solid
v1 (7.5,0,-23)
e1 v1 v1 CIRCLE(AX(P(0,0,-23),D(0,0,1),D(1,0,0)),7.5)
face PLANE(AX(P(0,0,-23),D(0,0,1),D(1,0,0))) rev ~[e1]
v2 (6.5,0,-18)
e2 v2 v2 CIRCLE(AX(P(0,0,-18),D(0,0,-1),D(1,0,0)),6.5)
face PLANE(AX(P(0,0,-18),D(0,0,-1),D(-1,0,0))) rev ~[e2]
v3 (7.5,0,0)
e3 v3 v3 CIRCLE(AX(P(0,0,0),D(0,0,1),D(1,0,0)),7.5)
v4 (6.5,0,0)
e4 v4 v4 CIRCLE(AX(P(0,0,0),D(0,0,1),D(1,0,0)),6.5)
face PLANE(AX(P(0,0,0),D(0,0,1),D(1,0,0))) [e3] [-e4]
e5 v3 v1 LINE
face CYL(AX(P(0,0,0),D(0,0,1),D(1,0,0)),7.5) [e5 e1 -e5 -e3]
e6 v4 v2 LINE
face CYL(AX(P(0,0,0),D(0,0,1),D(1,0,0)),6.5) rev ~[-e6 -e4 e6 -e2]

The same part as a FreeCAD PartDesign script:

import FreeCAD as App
import Part
import Sketcher

V = App.Vector
Q = App.Units.Quantity

doc = App.newDocument("Part")
params = doc.addObject("Spreadsheet::Sheet", "Params")
for row, (alias, value) in enumerate([
    ("sketch1_diameter", "15 mm"),
    ("sketch1_diameter2", "13 mm"),
    ("pad1_length", "23 mm"),
    ("sketch2_diameter", "13 mm"),
    ("pad2_length", "5 mm"),
], start=1):
    params.set(f"A{row}", alias)
    params.set(f"B{row}", "=" + value)
    params.setAlias(f"B{row}", alias)

body = doc.addObject("PartDesign::Body", "Body")

# Sketch on XY plane
sketch1 = body.newObject("Sketcher::SketchObject", "Sketch")
sketch1.AttachmentSupport = (doc.getObject("XY_Plane"), [""])
sketch1.MapMode = "FlatFace"
sketch1.addGeometry([
    Part.Circle(V(0, 0, 0), V(0, 0, 1), 8),
    Part.Circle(V(0, 0, 0), V(0, 0, 1), 6),
], False)
sketch1.addConstraint([
    Sketcher.Constraint("Coincident", 0, 3, -1, 1),
    Sketcher.Constraint("Coincident", 1, 3, -1, 1),
    Sketcher.Constraint("Diameter", 0, Q("15 mm")),
    Sketcher.Constraint("Diameter", 1, Q("13 mm")),
])
sketch1.setExpression("Constraints[2]", "Params.sketch1_diameter")
sketch1.setExpression("Constraints[3]", "Params.sketch1_diameter2")
pad1 = body.newObject("PartDesign::Pad", "Pad")
pad1.Profile = sketch1
pad1.setExpression("Length", "Params.pad1_length")
pad1.Reversed = True

# Sketch on XY plane
sketch2 = body.newObject("Sketcher::SketchObject", "Sketch001")
sketch2.AttachmentSupport = (doc.getObject("XY_Plane"), [""])
sketch2.MapMode = "FlatFace"
sketch2.AttachmentOffset = App.Placement(V(0, 0, -23), App.Rotation())
sketch2.addGeometry(Part.Circle(V(0, 0, 0), V(0, 0, 1), 6), False)
sketch2.addConstraint([
    Sketcher.Constraint("Coincident", 0, 3, -1, 1),
    Sketcher.Constraint("Diameter", 0, Q("13 mm")),
])
sketch2.setExpression("Constraints[1]", "Params.sketch2_diameter")
pad2 = body.newObject("PartDesign::Pad", "Pad001")
pad2.Profile = sketch2
pad2.setExpression("Length", "Params.pad2_length")

doc.recompute()
